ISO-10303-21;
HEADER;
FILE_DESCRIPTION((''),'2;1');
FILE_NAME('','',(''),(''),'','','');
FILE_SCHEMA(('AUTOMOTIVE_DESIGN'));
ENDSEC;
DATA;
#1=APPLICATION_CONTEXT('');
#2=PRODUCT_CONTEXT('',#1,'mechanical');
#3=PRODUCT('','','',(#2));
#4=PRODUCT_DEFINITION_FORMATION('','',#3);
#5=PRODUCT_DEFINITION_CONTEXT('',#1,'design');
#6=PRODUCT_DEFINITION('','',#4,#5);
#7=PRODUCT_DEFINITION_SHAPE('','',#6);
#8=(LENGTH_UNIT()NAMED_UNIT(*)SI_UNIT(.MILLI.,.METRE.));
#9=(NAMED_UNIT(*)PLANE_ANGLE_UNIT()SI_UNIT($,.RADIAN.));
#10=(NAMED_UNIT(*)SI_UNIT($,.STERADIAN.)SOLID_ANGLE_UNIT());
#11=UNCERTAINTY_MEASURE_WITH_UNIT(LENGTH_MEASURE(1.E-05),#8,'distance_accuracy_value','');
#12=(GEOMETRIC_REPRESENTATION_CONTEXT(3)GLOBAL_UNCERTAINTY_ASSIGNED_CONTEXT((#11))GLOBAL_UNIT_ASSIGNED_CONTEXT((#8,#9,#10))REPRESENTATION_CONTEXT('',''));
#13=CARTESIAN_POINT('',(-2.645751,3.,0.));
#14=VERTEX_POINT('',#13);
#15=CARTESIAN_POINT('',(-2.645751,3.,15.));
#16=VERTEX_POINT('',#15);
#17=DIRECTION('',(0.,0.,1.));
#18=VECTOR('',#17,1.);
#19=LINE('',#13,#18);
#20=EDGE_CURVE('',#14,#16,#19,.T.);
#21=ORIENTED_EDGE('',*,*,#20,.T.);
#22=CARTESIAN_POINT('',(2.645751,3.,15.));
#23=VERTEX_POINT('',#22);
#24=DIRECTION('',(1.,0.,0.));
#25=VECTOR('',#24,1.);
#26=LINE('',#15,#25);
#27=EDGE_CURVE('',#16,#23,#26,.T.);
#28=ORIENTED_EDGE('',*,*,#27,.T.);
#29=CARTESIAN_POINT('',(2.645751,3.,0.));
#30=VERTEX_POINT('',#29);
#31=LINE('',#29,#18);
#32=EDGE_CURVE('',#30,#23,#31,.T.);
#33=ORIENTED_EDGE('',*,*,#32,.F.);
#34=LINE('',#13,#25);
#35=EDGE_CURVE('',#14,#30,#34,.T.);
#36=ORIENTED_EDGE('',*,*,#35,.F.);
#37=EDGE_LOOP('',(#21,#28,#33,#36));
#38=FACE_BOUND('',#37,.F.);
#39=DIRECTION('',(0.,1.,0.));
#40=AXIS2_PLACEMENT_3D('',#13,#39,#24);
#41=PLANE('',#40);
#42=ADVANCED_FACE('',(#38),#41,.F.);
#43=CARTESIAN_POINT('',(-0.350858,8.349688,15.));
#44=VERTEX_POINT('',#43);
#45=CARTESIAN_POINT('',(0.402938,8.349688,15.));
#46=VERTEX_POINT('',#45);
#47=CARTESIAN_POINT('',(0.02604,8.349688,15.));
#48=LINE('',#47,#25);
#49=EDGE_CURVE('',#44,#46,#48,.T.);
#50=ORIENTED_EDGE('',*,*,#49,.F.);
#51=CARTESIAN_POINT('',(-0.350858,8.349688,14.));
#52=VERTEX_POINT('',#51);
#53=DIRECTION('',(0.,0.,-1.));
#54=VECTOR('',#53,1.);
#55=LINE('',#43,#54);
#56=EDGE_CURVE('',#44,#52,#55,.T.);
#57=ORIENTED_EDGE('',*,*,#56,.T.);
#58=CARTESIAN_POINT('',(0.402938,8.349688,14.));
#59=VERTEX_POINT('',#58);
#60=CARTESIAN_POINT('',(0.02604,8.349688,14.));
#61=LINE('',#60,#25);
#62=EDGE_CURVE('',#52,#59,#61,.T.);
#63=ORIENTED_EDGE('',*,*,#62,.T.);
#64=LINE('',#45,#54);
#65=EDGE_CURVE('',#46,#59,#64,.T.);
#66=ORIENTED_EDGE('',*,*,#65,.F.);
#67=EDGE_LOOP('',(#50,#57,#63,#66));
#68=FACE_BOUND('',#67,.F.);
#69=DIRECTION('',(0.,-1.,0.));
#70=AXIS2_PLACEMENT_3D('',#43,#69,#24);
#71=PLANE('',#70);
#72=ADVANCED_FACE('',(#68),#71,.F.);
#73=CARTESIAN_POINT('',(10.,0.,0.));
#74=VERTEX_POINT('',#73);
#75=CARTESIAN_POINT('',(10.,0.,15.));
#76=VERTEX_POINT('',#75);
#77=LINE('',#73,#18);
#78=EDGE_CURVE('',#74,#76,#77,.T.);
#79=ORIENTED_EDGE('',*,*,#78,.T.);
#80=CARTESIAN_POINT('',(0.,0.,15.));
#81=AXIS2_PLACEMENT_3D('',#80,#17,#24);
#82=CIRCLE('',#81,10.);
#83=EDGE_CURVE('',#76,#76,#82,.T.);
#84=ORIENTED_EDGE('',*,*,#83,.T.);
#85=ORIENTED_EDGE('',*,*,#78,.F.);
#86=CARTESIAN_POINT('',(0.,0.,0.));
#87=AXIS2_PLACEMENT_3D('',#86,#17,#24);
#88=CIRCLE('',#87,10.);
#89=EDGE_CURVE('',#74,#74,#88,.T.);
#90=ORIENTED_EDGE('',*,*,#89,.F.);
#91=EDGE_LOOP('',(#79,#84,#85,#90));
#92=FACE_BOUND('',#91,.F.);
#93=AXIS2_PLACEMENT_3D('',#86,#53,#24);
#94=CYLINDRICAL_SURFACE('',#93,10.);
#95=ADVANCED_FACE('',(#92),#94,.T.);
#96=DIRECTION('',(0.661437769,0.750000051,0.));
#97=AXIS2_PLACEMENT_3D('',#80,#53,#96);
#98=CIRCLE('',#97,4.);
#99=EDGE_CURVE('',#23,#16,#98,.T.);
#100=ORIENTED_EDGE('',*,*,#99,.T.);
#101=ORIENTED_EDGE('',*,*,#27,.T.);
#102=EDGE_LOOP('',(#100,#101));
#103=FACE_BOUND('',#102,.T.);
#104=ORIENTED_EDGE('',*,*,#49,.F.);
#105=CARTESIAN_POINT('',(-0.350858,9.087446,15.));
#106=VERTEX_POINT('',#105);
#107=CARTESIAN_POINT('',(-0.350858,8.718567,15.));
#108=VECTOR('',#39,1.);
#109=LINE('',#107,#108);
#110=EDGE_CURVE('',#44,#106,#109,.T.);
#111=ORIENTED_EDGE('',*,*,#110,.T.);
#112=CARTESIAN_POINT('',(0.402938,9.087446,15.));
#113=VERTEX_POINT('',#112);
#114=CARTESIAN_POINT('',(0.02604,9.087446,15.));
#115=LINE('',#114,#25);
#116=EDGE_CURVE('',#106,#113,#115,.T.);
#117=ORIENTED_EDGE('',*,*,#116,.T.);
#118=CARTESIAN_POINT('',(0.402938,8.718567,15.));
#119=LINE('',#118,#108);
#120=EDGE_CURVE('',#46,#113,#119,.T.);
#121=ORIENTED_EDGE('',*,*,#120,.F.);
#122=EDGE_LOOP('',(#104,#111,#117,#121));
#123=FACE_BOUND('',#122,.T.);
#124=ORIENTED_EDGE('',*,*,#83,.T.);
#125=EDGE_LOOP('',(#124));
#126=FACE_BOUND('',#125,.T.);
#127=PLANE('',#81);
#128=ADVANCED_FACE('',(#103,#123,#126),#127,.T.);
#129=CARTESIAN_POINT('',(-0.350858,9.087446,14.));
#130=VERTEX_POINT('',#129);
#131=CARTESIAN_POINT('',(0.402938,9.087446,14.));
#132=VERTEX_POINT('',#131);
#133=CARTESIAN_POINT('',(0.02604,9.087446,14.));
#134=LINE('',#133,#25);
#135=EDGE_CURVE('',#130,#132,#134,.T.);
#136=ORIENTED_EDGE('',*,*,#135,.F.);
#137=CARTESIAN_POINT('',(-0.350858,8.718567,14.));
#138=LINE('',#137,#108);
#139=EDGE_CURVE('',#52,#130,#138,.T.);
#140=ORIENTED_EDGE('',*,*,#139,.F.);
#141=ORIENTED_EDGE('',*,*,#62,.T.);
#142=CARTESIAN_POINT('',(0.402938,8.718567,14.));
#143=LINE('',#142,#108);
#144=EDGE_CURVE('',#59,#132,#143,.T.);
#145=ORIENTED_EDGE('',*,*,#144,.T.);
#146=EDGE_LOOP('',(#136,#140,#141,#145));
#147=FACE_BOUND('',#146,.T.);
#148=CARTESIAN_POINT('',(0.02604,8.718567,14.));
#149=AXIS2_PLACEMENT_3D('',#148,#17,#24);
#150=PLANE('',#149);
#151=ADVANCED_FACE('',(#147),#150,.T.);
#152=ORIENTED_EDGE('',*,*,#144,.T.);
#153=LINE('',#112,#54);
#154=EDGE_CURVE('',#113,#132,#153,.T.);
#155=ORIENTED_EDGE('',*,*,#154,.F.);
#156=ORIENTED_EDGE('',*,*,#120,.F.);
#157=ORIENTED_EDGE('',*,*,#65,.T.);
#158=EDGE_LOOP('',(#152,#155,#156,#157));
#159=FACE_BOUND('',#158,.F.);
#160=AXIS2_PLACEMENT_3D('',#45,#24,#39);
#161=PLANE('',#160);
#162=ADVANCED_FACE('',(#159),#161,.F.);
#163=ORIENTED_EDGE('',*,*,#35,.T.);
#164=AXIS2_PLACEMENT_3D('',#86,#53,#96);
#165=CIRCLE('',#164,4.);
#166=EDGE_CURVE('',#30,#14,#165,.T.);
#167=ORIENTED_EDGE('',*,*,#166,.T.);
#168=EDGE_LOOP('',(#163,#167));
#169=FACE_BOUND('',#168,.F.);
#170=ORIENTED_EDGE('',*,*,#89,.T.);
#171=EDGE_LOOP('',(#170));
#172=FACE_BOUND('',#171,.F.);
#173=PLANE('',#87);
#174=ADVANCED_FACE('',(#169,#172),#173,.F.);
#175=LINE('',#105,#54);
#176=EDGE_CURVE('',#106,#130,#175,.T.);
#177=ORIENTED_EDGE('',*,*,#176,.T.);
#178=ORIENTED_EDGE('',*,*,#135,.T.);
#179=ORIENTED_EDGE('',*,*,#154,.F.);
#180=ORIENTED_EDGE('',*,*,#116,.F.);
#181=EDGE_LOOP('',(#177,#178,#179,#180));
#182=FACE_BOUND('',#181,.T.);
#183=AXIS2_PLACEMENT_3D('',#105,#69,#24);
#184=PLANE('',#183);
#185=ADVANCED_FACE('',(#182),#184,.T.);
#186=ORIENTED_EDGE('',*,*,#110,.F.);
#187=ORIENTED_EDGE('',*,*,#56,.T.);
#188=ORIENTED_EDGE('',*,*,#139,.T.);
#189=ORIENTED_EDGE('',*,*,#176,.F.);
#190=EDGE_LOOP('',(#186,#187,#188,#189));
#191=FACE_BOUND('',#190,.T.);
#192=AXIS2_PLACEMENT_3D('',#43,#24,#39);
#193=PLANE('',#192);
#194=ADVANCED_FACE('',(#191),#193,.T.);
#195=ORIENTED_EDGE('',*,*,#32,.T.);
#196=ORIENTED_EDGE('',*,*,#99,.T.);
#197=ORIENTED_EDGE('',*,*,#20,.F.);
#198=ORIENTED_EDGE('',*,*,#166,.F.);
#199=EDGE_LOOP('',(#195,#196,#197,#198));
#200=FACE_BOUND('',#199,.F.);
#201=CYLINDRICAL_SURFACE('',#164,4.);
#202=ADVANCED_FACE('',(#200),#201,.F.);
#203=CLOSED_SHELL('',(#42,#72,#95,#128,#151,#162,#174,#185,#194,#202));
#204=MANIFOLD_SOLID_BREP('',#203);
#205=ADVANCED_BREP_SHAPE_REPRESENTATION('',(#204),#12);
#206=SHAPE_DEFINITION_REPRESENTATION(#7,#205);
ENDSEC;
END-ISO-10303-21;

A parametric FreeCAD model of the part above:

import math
import FreeCAD as App
import Part
import Sketcher

V = App.Vector
Q = App.Units.Quantity

doc = App.newDocument("Part")
body = doc.addObject("PartDesign::Body", "Body")

# Sketch on XY plane
sketch1 = body.newObject("Sketcher::SketchObject", "Sketch")
sketch1.AttachmentSupport = (doc.getObject("XY_Plane"), [""])
sketch1.MapMode = "FlatFace"
sketch1.addGeometry([
    Part.Circle(V(0, 0, 0), V(0, 0, 1), 10),
    Part.LineSegment(V(-2.6, 3, 0), V(2.6, 3, 0)),
    Part.ArcOfCircle(Part.Circle(V(0, 0, 0), V(0, 0, 1), 4), math.radians(131), math.radians(409)),
], False)
sketch1.addConstraint([
    Sketcher.Constraint("Coincident", 1, 1, 2, 1),
    Sketcher.Constraint("Coincident", 2, 2, 1, 2),
    Sketcher.Constraint("Horizontal", 1),
    Sketcher.Constraint("Coincident", 0, 3, -1, 1),
    Sketcher.Constraint("Coincident", 2, 3, -1, 1),
    Sketcher.Constraint("Diameter", 0, Q("20 mm")),
    Sketcher.Constraint("Radius", 2, Q("4 mm")),
    Sketcher.Constraint("DistanceY", -1, 1, 1, 1, Q("3 mm")),
])
pad1 = body.newObject("PartDesign::Pad", "Pad")
pad1.Profile = sketch1
pad1.Length = 15

# Sketch on XY plane
sketch2 = body.newObject("Sketcher::SketchObject", "Sketch001")
sketch2.AttachmentSupport = (doc.getObject("XY_Plane"), [""])
sketch2.MapMode = "FlatFace"
sketch2.AttachmentOffset = App.Placement(V(0, 0, 15), App.Rotation())
sketch2.addGeometry([
    Part.LineSegment(V(-0.4, 9.1, 0), V(-0.4, 8.3, 0)),
    Part.LineSegment(V(-0.4, 8.3, 0), V(0.4, 8.3, 0)),
    Part.LineSegment(V(0.4, 8.3, 0), V(0.4, 9.1, 0)),
    Part.LineSegment(V(0.4, 9.1, 0), V(-0.4, 9.1, 0)),
], False)
sketch2.addConstraint([
    Sketcher.Constraint("Coincident", 0, 2, 1, 1),
    Sketcher.Constraint("Coincident", 1, 2, 2, 1),
    Sketcher.Constraint("Coincident", 2, 2, 3, 1),
    Sketcher.Constraint("Coincident", 3, 2, 0, 1),
    Sketcher.Constraint("Vertical", 0),
    Sketcher.Constraint("Horizontal", 1),
    Sketcher.Constraint("Vertical", 2),
    Sketcher.Constraint("Horizontal", 3),
    Sketcher.Constraint("DistanceX", 1, 1, 1, 2, Q("0.753796 mm")),
    Sketcher.Constraint("DistanceY", 0, 2, 0, 1, Q("0.737758 mm")),
    Sketcher.Constraint("DistanceX", 0, 2, -1, 1, Q("0.350858 mm")),
    Sketcher.Constraint("DistanceY", -1, 1, 0, 2, Q("8.349688 mm")),
])
pocket1 = body.newObject("PartDesign::Pocket", "Pocket")
pocket1.Profile = sketch2
pocket1.Length = 1

doc.recompute()
